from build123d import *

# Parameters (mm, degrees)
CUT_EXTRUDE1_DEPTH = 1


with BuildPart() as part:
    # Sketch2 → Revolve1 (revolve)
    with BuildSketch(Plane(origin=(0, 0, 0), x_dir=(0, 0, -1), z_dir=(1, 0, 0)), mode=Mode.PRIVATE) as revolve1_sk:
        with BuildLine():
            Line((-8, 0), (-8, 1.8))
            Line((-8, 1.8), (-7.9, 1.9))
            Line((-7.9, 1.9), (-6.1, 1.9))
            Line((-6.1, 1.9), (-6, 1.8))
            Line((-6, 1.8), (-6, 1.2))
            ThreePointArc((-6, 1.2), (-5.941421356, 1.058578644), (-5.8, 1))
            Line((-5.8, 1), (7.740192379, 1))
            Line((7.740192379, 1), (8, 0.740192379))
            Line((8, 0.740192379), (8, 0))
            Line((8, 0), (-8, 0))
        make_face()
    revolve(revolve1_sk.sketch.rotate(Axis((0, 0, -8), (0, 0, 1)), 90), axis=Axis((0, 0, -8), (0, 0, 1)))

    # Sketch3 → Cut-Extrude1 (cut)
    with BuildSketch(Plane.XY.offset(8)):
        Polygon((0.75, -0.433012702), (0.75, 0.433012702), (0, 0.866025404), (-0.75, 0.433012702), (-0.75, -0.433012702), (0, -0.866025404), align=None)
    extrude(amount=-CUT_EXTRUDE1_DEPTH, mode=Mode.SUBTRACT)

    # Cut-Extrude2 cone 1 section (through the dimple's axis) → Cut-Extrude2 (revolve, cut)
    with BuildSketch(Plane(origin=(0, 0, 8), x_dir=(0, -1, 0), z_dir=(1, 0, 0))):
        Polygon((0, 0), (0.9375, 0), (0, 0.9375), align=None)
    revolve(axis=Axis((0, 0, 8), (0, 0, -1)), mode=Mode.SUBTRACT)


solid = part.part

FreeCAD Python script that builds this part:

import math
import FreeCAD as App
import Part
import Sketcher
from FreeCAD import Vector
Q = App.Units.Quantity

doc = App.newDocument("Part")
params = doc.addObject("Spreadsheet::Sheet", "Params")
for row, (alias, value) in enumerate([
    ("sketch1_radius", "0.2 mm"),
    ("sketch1_height", "16 mm"),
    ("sketch1_width", "1.8 mm"),
    ("sketch1_width2", "0.6 mm"),
    ("revolution_angle", "360 deg"),
    ("pocket1_length", "1 mm"),
    ("groove_angle", "360 deg"),
], start=1):
    params.set(f"A{row}", alias)
    params.set(f"B{row}", "=" + value)
    params.setAlias(f"B{row}", alias)

body = doc.addObject("PartDesign::Body", "Body")

# Sketch on YZ plane
sketch1 = doc.addObject("Sketcher::SketchObject", "Sketch")
body.addObject(sketch1)
sketch1.AttachmentSupport = (doc.YZ_Plane, [""])
sketch1.MapMode = "FlatFace"
sketch1.addGeometry([
    Part.LineSegment(Vector(1.8, 8, 0), Vector(0, 8, 0)),  # 0
    Part.LineSegment(Vector(0, 8, 0), Vector(0, -8, 0)),  # 1
    Part.LineSegment(Vector(0, -8, 0), Vector(0.74, -8, 0)),  # 2
    Part.LineSegment(Vector(0.74, -8, 0), Vector(1, -7.74, 0)),  # 3
    Part.LineSegment(Vector(1, -7.74, 0), Vector(1, 5.8, 0)),  # 4
    Part.ArcOfCircle(Part.Circle(Vector(1.2, 5.8, 0), Vector(0, 0, 1), 0.2), math.radians(90), math.radians(180)),  # 5
    Part.LineSegment(Vector(1.2, 6, 0), Vector(1.8, 6, 0)),  # 6
    Part.LineSegment(Vector(1.8, 6, 0), Vector(1.9, 6.1, 0)),  # 7
    Part.LineSegment(Vector(1.9, 6.1, 0), Vector(1.9, 7.9, 0)),  # 8
    Part.LineSegment(Vector(1.9, 7.9, 0), Vector(1.8, 8, 0)),  # 9
], False)
sketch1.addConstraint([
    Sketcher.Constraint("Coincident", 0, 2, 1, 1),
    Sketcher.Constraint("Coincident", 1, 2, 2, 1),
    Sketcher.Constraint("Coincident", 2, 2, 3, 1),
    Sketcher.Constraint("Coincident", 3, 2, 4, 1),
    Sketcher.Constraint("Tangent", 4, 2, 5, 2),
    Sketcher.Constraint("Tangent", 5, 1, 6, 1),
    Sketcher.Constraint("Coincident", 6, 2, 7, 1),
    Sketcher.Constraint("Coincident", 7, 2, 8, 1),
    Sketcher.Constraint("Coincident", 8, 2, 9, 1),
    Sketcher.Constraint("Coincident", 9, 2, 0, 1),
    Sketcher.Constraint("Horizontal", 0),
    Sketcher.Constraint("Vertical", 1),
    Sketcher.Constraint("Horizontal", 2),
    Sketcher.Constraint("Vertical", 4),
    Sketcher.Constraint("Horizontal", 6),
    Sketcher.Constraint("Vertical", 8),
    Sketcher.Constraint("Symmetric", 0, 2, 1, 2, -1, 1),
    Sketcher.Constraint("Parallel", 3, 7),
    Sketcher.Constraint("Perpendicular", 7, 9),
    Sketcher.Constraint("Vertical", 6, 2, 9, 2),
    Sketcher.Constraint("Equal", 0, 8),
    Sketcher.Constraint("Equal", 7, 9),
    Sketcher.Constraint("Radius", 5, 0.2),
    Sketcher.Constraint("DistanceY", 1, 2, 1, 1, 16.0),
    Sketcher.Constraint("DistanceX", 0, 2, 0, 1, 1.8),
    Sketcher.Constraint("DistanceX", 6, 1, 6, 2, 0.6),
    Sketcher.Constraint("DistanceY", -1, 1, 5, 1, 6.0),
    Sketcher.Constraint("DistanceX", 2, 1, 2, 2, 0.740192),
])
sketch1.setExpression("Constraints[22]", "Params.sketch1_radius")
sketch1.setExpression("Constraints[23]", "Params.sketch1_height")
sketch1.setExpression("Constraints[24]", "Params.sketch1_width")
sketch1.setExpression("Constraints[25]", "Params.sketch1_width2")
revolution = doc.addObject("PartDesign::Revolution", "Revolution")
body.addObject(revolution)
revolution.Profile = sketch1
revolution.ReferenceAxis = (sketch1, ["V_Axis"])
revolution.setExpression("Angle", "Params.revolution_angle")

# Sketch on XY plane
sketch2 = doc.addObject("Sketcher::SketchObject", "Sketch001")
body.addObject(sketch2)
sketch2.AttachmentSupport = (doc.XY_Plane, [""])
sketch2.MapMode = "FlatFace"
sketch2.AttachmentOffset = App.Placement(Vector(0, 0, 8), App.Rotation())
sketch2.addGeometry([
    Part.LineSegment(Vector(0.8, -0.4, 0), Vector(0.8, 0.4, 0)),  # 0
    Part.LineSegment(Vector(0.8, 0.4, 0), Vector(0, 0.9, 0)),  # 1
    Part.LineSegment(Vector(0, 0.9, 0), Vector(-0.8, 0.4, 0)),  # 2
    Part.LineSegment(Vector(-0.8, 0.4, 0), Vector(-0.8, -0.4, 0)),  # 3
    Part.LineSegment(Vector(-0.8, -0.4, 0), Vector(0, -0.9, 0)),  # 4
    Part.LineSegment(Vector(0, -0.9, 0), Vector(0.8, -0.4, 0)),  # 5
], False)
sketch2.addConstraint([
    Sketcher.Constraint("Coincident", 0, 2, 1, 1),
    Sketcher.Constraint("Coincident", 1, 2, 2, 1),
    Sketcher.Constraint("Coincident", 2, 2, 3, 1),
    Sketcher.Constraint("Coincident", 3, 2, 4, 1),
    Sketcher.Constraint("Coincident", 4, 2, 5, 1),
    Sketcher.Constraint("Coincident", 5, 2, 0, 1),
    Sketcher.Constraint("Vertical", 0),
    Sketcher.Constraint("Vertical", 3),
    Sketcher.Constraint("Symmetric", 0, 2, 3, 2, -1, 1),
    Sketcher.Constraint("Symmetric", 1, 2, 4, 2, -1, 1),
    Sketcher.Constraint("PointOnObject", 1, 2, -2),
    Sketcher.Constraint("Parallel", 2, 5),
    Sketcher.Constraint("Horizontal", 0, 2, 2, 2),
    Sketcher.Constraint("Angle", 1, Q("150 deg")),
    Sketcher.Constraint("DistanceX", 2, 2, 0, 2, 1.5),
    Sketcher.Constraint("DistanceY", 0, 1, 0, 2, 0.866025),
])
pocket1 = doc.addObject("PartDesign::Pocket", "Pocket")
body.addObject(pocket1)
pocket1.Profile = sketch2
pocket1.setExpression("Length", "Params.pocket1_length")

# Sketch on YZ plane
sketch3 = doc.addObject("Sketcher::SketchObject", "Sketch002")
body.addObject(sketch3)
sketch3.AttachmentSupport = (doc.YZ_Plane, [""])
sketch3.MapMode = "FlatFace"
sketch3.addGeometry([
    Part.LineSegment(Vector(0, 8, 0), Vector(-0.9, 8, 0)),
    Part.LineSegment(Vector(-0.9, 8, 0), Vector(0, 7.1, 0)),
    Part.LineSegment(Vector(0, 7.1, 0), Vector(0, 8, 0)),
], False)
sketch3.addConstraint([
    Sketcher.Constraint("Coincident", 0, 2, 1, 1),
    Sketcher.Constraint("Coincident", 1, 2, 2, 1),
    Sketcher.Constraint("Coincident", 2, 2, 0, 1),
    Sketcher.Constraint("Horizontal", 0),
    Sketcher.Constraint("Vertical", 2),
    Sketcher.Constraint("PointOnObject", 1, 2, -2),
    Sketcher.Constraint("Equal", 0, 2),
    Sketcher.Constraint("DistanceY", -1, 1, 0, 2, 8.0),
    Sketcher.Constraint("DistanceX", 0, 2, 0, 1, 0.9375),
])
groove = doc.addObject("PartDesign::Groove", "Groove")
body.addObject(groove)
groove.Profile = sketch3
groove.ReferenceAxis = (sketch3, ["V_Axis"])
groove.setExpression("Angle", "Params.groove_angle")

doc.recompute()
